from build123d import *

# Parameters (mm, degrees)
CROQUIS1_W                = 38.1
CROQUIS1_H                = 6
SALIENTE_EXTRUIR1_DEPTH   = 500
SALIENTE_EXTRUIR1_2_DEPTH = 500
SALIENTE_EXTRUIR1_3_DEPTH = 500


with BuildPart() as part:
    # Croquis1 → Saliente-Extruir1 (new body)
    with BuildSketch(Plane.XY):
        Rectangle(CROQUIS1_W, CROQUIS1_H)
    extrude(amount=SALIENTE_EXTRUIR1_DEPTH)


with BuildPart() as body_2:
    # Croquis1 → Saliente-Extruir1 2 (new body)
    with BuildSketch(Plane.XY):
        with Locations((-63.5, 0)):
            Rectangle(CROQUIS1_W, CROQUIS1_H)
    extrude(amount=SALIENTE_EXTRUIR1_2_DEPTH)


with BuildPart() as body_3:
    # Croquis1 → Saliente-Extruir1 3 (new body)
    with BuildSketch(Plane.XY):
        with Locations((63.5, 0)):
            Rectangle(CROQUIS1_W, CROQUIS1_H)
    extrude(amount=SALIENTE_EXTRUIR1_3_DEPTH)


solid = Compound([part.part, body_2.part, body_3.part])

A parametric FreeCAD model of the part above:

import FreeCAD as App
import Part
import Sketcher

V = App.Vector
Q = App.Units.Quantity

doc = App.newDocument("Part")
body = doc.addObject("PartDesign::Body", "Body")

# Sketch on XY plane
sketch1 = body.newObject("Sketcher::SketchObject", "Sketch")
sketch1.AttachmentSupport = (doc.getObject("XY_Plane"), [""])
sketch1.MapMode = "FlatFace"
sketch1.addGeometry(Part.LineSegment(V(-19, 3, 0), V(-19, -3, 0)), False)
sketch1.addGeometry(Part.LineSegment(V(-19, -3, 0), V(19, -3, 0)), False)
sketch1.addGeometry(Part.LineSegment(V(19, -3, 0), V(19, 3, 0)), False)
sketch1.addGeometry(Part.LineSegment(V(19, 3, 0), V(-19, 3, 0)), False)
sketch1.addConstraint(Sketcher.Constraint("Coincident", 0, 2, 1, 1))
sketch1.addConstraint(Sketcher.Constraint("Coincident", 1, 2, 2, 1))
sketch1.addConstraint(Sketcher.Constraint("Coincident", 2, 2, 3, 1))
sketch1.addConstraint(Sketcher.Constraint("Coincident", 3, 2, 0, 1))
sketch1.addConstraint(Sketcher.Constraint("Vertical", 0))
sketch1.addConstraint(Sketcher.Constraint("Horizontal", 1))
sketch1.addConstraint(Sketcher.Constraint("Vertical", 2))
sketch1.addConstraint(Sketcher.Constraint("Horizontal", 3))
sketch1.addConstraint(Sketcher.Constraint("Symmetric", 0, 2, 2, 2, -1, 1))
sketch1.addConstraint(Sketcher.Constraint("DistanceY", 0, 2, 0, 1, Q("6 mm")))
sketch1.addConstraint(Sketcher.Constraint("DistanceX", 1, 1, 1, 2, Q("38.1 mm")))
pad1 = body.newObject("PartDesign::Pad", "Pad")
pad1.Profile = sketch1
pad1.Length = 500
body2 = doc.addObject("PartDesign::Body", "Body001")

# Sketch on XY plane
sketch2 = body2.newObject("Sketcher::SketchObject", "Sketch001")
sketch2.AttachmentSupport = (doc.getObject("XY_Plane001"), [""])
sketch2.MapMode = "FlatFace"
sketch2.addGeometry(Part.LineSegment(V(-83, 3, 0), V(-83, -3, 0)), False)
sketch2.addGeometry(Part.LineSegment(V(-83, -3, 0), V(-44, -3, 0)), False)
sketch2.addGeometry(Part.LineSegment(V(-44, -3, 0), V(-44, 3, 0)), False)
sketch2.addGeometry(Part.LineSegment(V(-44, 3, 0), V(-83, 3, 0)), False)
sketch2.addConstraint(Sketcher.Constraint("Coincident", 0, 2, 1, 1))
sketch2.addConstraint(Sketcher.Constraint("Coincident", 1, 2, 2, 1))
sketch2.addConstraint(Sketcher.Constraint("Coincident", 2, 2, 3, 1))
sketch2.addConstraint(Sketcher.Constraint("Coincident", 3, 2, 0, 1))
sketch2.addConstraint(Sketcher.Constraint("Vertical", 0))
sketch2.addConstraint(Sketcher.Constraint("Horizontal", 1))
sketch2.addConstraint(Sketcher.Constraint("Vertical", 2))
sketch2.addConstraint(Sketcher.Constraint("Horizontal", 3))
sketch2.addConstraint(Sketcher.Constraint("DistanceY", 0, 2, 0, 1, Q("6 mm")))
sketch2.addConstraint(Sketcher.Constraint("DistanceX", 1, 1, 1, 2, Q("38.1 mm")))
sketch2.addConstraint(Sketcher.Constraint("DistanceY", 0, 2, -1, 1, Q("3 mm")))
sketch2.addConstraint(Sketcher.Constraint("DistanceX", 0, 2, -1, 1, Q("82.55 mm")))
pad2 = body2.newObject("PartDesign::Pad", "Pad001")
pad2.Profile = sketch2
pad2.Length = 500
body3 = doc.addObject("PartDesign::Body", "Body002")

# Sketch on XY plane
sketch3 = body3.newObject("Sketcher::SketchObject", "Sketch002")
sketch3.AttachmentSupport = (doc.getObject("XY_Plane002"), [""])
sketch3.MapMode = "FlatFace"
sketch3.addGeometry(Part.LineSegment(V(44, 3, 0), V(44, -3, 0)), False)
sketch3.addGeometry(Part.LineSegment(V(44, -3, 0), V(83, -3, 0)), False)
sketch3.addGeometry(Part.LineSegment(V(83, -3, 0), V(83, 3, 0)), False)
sketch3.addGeometry(Part.LineSegment(V(83, 3, 0), V(44, 3, 0)), False)
sketch3.addConstraint(Sketcher.Constraint("Coincident", 0, 2, 1, 1))
sketch3.addConstraint(Sketcher.Constraint("Coincident", 1, 2, 2, 1))
sketch3.addConstraint(Sketcher.Constraint("Coincident", 2, 2, 3, 1))
sketch3.addConstraint(Sketcher.Constraint("Coincident", 3, 2, 0, 1))
sketch3.addConstraint(Sketcher.Constraint("Vertical", 0))
sketch3.addConstraint(Sketcher.Constraint("Horizontal", 1))
sketch3.addConstraint(Sketcher.Constraint("Vertical", 2))
sketch3.addConstraint(Sketcher.Constraint("Horizontal", 3))
sketch3.addConstraint(Sketcher.Constraint("DistanceY", 0, 2, 0, 1, Q("6 mm")))
sketch3.addConstraint(Sketcher.Constraint("DistanceX", 1, 1, 1, 2, Q("38.1 mm")))
sketch3.addConstraint(Sketcher.Constraint("DistanceY", 0, 2, -1, 1, Q("3 mm")))
sketch3.addConstraint(Sketcher.Constraint("DistanceX", -1, 1, 0, 2, Q("44.45 mm")))
pad3 = body3.newObject("PartDesign::Pad", "Pad002")
pad3.Profile = sketch3
pad3.Length = 500

doc.recompute()
